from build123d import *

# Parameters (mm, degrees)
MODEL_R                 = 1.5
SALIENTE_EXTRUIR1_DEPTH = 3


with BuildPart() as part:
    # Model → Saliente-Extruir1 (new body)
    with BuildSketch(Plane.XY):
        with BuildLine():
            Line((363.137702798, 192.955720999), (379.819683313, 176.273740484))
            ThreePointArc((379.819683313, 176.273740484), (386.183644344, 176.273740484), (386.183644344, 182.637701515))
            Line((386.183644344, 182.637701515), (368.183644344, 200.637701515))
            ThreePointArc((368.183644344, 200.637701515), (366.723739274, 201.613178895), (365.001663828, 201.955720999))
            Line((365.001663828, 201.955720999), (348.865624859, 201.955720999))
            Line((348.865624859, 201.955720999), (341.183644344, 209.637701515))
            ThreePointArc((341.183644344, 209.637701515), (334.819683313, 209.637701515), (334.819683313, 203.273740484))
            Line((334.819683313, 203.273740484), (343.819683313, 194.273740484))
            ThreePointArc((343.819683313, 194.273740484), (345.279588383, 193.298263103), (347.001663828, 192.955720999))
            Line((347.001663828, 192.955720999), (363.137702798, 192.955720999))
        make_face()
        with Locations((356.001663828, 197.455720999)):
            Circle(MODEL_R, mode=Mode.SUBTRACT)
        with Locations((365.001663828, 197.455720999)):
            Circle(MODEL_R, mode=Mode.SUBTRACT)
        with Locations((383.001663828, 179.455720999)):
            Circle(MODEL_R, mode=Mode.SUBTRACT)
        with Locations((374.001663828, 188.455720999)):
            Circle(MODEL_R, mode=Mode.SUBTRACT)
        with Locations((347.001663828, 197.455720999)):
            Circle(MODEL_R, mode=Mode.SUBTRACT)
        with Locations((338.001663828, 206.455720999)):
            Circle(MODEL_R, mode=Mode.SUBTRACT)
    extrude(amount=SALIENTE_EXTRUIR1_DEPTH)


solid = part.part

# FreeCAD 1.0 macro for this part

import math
import FreeCAD as App
import Part
import Sketcher
from FreeCAD import Vector
Q = App.Units.Quantity

doc = App.newDocument("Part")
body = doc.addObject("PartDesign::Body", "Body")

# Sketch on XY plane
sketch1 = body.newObject("Sketcher::SketchObject", "Sketch")
sketch1.AttachmentSupport = (doc.getObject("XY_Plane"), [""])
sketch1.MapMode = "FlatFace"
sketch1.addGeometry([
    Part.LineSegment(Vector(363.1, 193, 0), Vector(379.8, 176.3, 0)),  # 0
    Part.ArcOfCircle(Part.Circle(Vector(383, 179.5, 0), Vector(0, 0, 1), 4.5), math.radians(-135), math.radians(45)),  # 1
    Part.LineSegment(Vector(386.2, 182.6, 0), Vector(368.2, 200.6, 0)),  # 2
    Part.ArcOfCircle(Part.Circle(Vector(365, 197.5, 0), Vector(0, 0, 1), 4.5), math.radians(45), math.radians(90)),  # 3
    Part.LineSegment(Vector(365, 202, 0), Vector(348.9, 202, 0)),  # 4
    Part.LineSegment(Vector(348.9, 202, 0), Vector(341.2, 209.6, 0)),  # 5
    Part.ArcOfCircle(Part.Circle(Vector(338, 206.5, 0), Vector(0, 0, 1), 4.5), math.radians(45), math.radians(225)),  # 6
    Part.LineSegment(Vector(334.8, 203.3, 0), Vector(343.8, 194.3, 0)),  # 7
    Part.ArcOfCircle(Part.Circle(Vector(347, 197.5, 0), Vector(0, 0, 1), 4.5), math.radians(-135), math.radians(-90)),  # 8
    Part.LineSegment(Vector(347, 193, 0), Vector(363.1, 193, 0)),  # 9
    Part.Circle(Vector(383, 179.5, 0), Vector(0, 0, 1), 1.5),  # 10
    Part.Circle(Vector(374, 188.5, 0), Vector(0, 0, 1), 1.5),  # 11
    Part.Circle(Vector(347, 197.5, 0), Vector(0, 0, 1), 1.5),  # 12
    Part.Circle(Vector(356, 197.5, 0), Vector(0, 0, 1), 1.5),  # 13
    Part.Circle(Vector(338, 206.5, 0), Vector(0, 0, 1), 1.5),  # 14
    Part.Circle(Vector(365, 197.5, 0), Vector(0, 0, 1), 1.5),  # 15
], False)
sketch1.addConstraint([
    Sketcher.Constraint("Tangent", 0, 2, 1, 1),
    Sketcher.Constraint("Tangent", 1, 2, 2, 1),
    Sketcher.Constraint("Tangent", 2, 2, 3, 1),
    Sketcher.Constraint("Tangent", 3, 2, 4, 1),
    Sketcher.Constraint("Coincident", 4, 2, 5, 1),
    Sketcher.Constraint("Tangent", 5, 2, 6, 1),
    Sketcher.Constraint("Tangent", 6, 2, 7, 1),
    Sketcher.Constraint("Tangent", 7, 2, 8, 1),
    Sketcher.Constraint("Tangent", 8, 2, 9, 1),
    Sketcher.Constraint("Coincident", 9, 2, 0, 1),
    Sketcher.Constraint("Horizontal", 4),
    Sketcher.Constraint("Horizontal", 9),
    Sketcher.Constraint("Coincident", 10, 3, 1, 3),
    Sketcher.Constraint("Coincident", 12, 3, 8, 3),
    Sketcher.Constraint("Coincident", 14, 3, 6, 3),
    Sketcher.Constraint("Coincident", 15, 3, 3, 3),
    Sketcher.Constraint("Equal", 1, 3),
    Sketcher.Constraint("Equal", 3, 6),
    Sketcher.Constraint("Equal", 6, 8),
    Sketcher.Constraint("Equal", 10, 11),
    Sketcher.Constraint("Equal", 11, 12),
    Sketcher.Constraint("Equal", 12, 13),
    Sketcher.Constraint("Equal", 13, 14),
    Sketcher.Constraint("Equal", 14, 15),
    Sketcher.Constraint("Parallel", 0, 2),
    Sketcher.Constraint("Parallel", 2, 5),
    Sketcher.Constraint("Parallel", 5, 7),
    Sketcher.Constraint("Horizontal", 3, 3, 8, 3),
    Sketcher.Constraint("Horizontal", 12, 3, 13, 3),
    Sketcher.Constraint("Diameter", 10, 3.0),
    Sketcher.Constraint("Radius", 1, 4.5),
    Sketcher.Constraint("Angle", 0, Q("-45 deg")),
    Sketcher.Constraint("DistanceX", 3, 3, 1, 3, 18.0),
    Sketcher.Constraint("DistanceX", 6, 3, 3, 3, 27.0),
    Sketcher.Constraint("DistanceY", 3, 3, 6, 3, 9.0),
    Sketcher.Constraint("DistanceX", 3, 3, 11, 3, 9.0),
    Sketcher.Constraint("DistanceY", 11, 3, 3, 3, 9.0),
    Sketcher.Constraint("DistanceX", 13, 3, 3, 3, 9.0),
    Sketcher.Constraint("DistanceY", -1, 1, 1, 2, 182.637702),
    Sketcher.Constraint("DistanceX", -1, 1, 1, 3, 383.001664),
])
pad1 = body.newObject("PartDesign::Pad", "Pad")
pad1.Profile = sketch1
pad1.Length = 3

doc.recompute()
